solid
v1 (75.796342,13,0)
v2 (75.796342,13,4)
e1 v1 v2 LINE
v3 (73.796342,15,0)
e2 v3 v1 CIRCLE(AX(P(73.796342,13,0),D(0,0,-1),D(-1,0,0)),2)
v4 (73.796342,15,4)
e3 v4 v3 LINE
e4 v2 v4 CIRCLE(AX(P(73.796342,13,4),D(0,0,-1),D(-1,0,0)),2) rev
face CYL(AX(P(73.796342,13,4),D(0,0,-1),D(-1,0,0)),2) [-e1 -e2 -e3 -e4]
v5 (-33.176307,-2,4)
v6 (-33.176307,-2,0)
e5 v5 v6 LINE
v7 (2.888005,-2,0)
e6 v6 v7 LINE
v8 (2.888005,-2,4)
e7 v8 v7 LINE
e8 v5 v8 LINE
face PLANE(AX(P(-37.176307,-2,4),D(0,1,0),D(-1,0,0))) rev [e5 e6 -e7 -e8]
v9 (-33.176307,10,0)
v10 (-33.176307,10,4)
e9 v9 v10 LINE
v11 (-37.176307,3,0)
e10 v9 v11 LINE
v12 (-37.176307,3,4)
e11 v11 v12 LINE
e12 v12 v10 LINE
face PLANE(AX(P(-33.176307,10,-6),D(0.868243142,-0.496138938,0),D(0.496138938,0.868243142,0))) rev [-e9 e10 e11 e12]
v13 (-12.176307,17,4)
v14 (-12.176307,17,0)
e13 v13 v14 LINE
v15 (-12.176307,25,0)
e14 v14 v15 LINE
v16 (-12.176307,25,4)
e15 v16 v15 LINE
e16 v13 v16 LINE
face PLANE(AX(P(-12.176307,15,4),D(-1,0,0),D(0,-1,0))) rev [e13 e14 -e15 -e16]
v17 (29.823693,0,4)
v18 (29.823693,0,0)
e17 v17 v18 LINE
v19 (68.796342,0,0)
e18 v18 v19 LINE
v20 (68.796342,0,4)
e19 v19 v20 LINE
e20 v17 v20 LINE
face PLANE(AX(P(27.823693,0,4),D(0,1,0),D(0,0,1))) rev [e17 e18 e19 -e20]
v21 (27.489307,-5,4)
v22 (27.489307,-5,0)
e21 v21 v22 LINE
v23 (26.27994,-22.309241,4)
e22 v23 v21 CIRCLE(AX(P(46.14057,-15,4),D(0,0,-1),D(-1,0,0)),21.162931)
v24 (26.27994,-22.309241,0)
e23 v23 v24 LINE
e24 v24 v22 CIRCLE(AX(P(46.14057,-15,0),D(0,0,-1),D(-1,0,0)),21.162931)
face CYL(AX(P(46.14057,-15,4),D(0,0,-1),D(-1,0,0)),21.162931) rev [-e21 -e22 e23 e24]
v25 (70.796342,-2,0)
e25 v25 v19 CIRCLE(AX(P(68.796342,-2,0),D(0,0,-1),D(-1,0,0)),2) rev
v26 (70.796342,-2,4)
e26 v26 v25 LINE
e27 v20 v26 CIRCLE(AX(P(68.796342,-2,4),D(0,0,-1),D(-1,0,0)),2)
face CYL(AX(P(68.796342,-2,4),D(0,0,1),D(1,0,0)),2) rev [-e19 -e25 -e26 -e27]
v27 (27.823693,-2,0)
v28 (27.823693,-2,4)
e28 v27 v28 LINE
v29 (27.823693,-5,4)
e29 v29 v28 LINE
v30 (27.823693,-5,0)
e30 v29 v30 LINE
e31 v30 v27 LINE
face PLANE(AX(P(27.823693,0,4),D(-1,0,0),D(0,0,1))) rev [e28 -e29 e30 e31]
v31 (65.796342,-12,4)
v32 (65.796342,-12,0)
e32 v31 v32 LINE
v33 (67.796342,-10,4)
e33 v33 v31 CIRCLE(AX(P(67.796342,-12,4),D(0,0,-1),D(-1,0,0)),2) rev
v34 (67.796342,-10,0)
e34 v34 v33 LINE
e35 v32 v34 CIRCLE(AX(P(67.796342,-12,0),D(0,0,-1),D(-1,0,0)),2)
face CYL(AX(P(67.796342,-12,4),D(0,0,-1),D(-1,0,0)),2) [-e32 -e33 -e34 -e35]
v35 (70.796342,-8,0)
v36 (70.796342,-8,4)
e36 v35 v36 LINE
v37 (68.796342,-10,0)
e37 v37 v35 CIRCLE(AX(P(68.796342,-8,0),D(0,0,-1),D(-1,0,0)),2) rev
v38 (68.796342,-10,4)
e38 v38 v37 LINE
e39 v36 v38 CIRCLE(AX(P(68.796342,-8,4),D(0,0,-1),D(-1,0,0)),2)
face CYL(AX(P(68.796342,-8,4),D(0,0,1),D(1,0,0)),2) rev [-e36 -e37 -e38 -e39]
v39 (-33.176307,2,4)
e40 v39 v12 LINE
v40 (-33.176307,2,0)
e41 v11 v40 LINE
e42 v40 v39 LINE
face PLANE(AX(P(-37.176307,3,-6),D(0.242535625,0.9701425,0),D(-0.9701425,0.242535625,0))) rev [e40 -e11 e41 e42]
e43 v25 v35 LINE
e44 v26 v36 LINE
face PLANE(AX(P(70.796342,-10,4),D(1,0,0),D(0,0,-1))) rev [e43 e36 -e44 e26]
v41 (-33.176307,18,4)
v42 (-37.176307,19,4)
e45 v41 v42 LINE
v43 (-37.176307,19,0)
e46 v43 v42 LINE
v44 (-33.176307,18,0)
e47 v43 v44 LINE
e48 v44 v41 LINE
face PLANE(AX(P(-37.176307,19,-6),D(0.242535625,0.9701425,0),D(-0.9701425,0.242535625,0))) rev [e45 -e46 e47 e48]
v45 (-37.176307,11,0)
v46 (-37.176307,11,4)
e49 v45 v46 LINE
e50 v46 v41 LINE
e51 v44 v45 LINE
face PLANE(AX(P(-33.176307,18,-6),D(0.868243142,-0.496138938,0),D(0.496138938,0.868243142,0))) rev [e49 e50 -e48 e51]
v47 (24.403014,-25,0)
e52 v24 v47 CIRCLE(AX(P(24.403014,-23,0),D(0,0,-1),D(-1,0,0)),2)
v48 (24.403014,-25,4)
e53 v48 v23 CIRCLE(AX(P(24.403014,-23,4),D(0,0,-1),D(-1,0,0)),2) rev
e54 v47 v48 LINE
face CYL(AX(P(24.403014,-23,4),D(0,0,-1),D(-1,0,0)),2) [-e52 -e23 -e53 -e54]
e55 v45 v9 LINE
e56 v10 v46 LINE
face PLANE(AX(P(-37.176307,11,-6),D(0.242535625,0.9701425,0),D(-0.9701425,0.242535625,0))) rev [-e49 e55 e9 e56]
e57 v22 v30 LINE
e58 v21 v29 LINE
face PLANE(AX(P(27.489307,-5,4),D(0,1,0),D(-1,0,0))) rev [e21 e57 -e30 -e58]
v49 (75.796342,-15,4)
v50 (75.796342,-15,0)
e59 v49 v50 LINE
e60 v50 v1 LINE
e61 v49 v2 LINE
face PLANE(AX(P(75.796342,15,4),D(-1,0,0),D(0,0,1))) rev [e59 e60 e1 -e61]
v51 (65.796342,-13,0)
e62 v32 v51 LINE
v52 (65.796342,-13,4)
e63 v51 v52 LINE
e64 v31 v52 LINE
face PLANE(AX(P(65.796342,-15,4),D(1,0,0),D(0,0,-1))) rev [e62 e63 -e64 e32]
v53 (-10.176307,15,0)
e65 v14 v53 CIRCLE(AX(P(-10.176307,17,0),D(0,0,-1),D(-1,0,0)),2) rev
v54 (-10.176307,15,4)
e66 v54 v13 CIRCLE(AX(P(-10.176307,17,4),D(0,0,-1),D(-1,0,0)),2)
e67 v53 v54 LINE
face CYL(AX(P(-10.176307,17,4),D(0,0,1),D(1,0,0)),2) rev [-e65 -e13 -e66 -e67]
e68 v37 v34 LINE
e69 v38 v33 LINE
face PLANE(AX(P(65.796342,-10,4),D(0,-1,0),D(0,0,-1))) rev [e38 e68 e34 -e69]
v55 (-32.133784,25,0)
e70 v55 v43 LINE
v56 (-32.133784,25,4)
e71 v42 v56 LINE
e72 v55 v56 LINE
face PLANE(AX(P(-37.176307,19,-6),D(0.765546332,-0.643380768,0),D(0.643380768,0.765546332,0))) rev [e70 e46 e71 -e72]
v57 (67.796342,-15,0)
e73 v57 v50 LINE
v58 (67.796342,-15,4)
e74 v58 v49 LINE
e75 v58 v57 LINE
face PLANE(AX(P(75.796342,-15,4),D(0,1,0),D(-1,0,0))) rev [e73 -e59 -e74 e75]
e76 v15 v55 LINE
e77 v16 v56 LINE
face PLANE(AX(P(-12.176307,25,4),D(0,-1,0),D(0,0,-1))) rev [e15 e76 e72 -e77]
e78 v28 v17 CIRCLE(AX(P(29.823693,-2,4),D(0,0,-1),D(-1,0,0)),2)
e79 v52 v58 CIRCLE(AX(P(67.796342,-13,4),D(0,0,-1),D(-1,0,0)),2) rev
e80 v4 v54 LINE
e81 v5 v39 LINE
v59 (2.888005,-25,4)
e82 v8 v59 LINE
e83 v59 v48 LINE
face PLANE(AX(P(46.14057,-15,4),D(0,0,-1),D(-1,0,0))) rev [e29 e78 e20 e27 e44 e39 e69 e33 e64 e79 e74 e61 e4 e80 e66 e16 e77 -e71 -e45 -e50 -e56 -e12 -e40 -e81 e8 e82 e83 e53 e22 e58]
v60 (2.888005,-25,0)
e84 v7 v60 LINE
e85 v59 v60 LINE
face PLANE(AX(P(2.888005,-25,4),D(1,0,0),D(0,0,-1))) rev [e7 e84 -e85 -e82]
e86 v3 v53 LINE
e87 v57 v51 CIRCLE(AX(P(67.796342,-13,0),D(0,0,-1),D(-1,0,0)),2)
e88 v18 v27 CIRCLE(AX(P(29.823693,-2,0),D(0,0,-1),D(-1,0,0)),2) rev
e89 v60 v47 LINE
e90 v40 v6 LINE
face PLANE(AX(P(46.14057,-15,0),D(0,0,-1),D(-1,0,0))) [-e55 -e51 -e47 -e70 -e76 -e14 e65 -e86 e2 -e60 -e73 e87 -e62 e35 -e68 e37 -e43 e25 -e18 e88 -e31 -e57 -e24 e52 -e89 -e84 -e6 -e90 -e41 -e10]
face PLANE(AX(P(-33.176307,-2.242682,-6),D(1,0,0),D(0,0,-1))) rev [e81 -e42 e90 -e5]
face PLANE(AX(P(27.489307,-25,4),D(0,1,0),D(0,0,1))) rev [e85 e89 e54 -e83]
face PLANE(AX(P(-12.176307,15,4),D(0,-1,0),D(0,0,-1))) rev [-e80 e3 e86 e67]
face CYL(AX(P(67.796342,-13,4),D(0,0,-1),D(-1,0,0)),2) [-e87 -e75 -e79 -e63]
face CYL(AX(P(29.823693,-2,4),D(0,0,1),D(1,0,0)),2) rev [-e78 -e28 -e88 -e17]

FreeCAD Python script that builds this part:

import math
import FreeCAD as App
import Part
import Sketcher


def edges_at(feature, points):
    """Names of the edges that pass closest to the given points."""
    edges = feature.Shape.Edges
    near = lambda p: min(range(len(edges)), key=lambda i: edges[i].distToShape(Part.Vertex(*p))[0])
    return sorted({f"Edge{near(p) + 1}" for p in points})


def add_polygon(sketch, points):
    """Adds a closed chain of lines whose ends are joined by coincident constraints."""
    first, n = sketch.GeometryCount, len(points)
    for a, b in zip(points, points[1:] + points[:1]):
        sketch.addGeometry(Part.LineSegment(App.Vector(*a, 0), App.Vector(*b, 0)), False)
    for i in range(n):
        sketch.addConstraint(Sketcher.Constraint("Coincident", first + i, 2, first + (i + 1) % n, 1))

doc = App.newDocument("Part")
body = doc.addObject("PartDesign::Body", "Body")

sketch1 = body.newObject("Sketcher::SketchObject", "Sketch")
sketch1.AttachmentSupport = (doc.getObject("XY_Plane"), [""])
sketch1.MapMode = "FlatFace"
sketch1.addGeometry([
    Part.LineSegment(App.Vector(75.796342, -15, 0), App.Vector(75.796342, 15, 0)),
    Part.LineSegment(App.Vector(75.796342, 15, 0), App.Vector(-12.176307, 15, 0)),
    Part.LineSegment(App.Vector(-12.176307, 15, 0), App.Vector(-12.176307, 25, 0)),
    Part.LineSegment(App.Vector(-12.176307, 25, 0), App.Vector(-37.176307, 25, 0)),
    Part.LineSegment(App.Vector(-37.176307, 25, 0), App.Vector(-37.176307, -2, 0)),
    Part.LineSegment(App.Vector(-37.176307, -2, 0), App.Vector(2.888005, -2, 0)),
    Part.LineSegment(App.Vector(2.888005, -2, 0), App.Vector(2.888005, -25, 0)),
    Part.LineSegment(App.Vector(2.888005, -25, 0), App.Vector(27.489307, -25, 0)),
    Part.ArcOfCircle(Part.Circle(App.Vector(46.14057, -15, 0), App.Vector(0, 0, 1), 21.162931), math.radians(151.801717), math.radians(208.198283)),
    Part.LineSegment(App.Vector(27.489307, -5, 0), App.Vector(27.823693, -5, 0)),
    Part.LineSegment(App.Vector(27.823693, -5, 0), App.Vector(27.823693, 0, 0)),
    Part.LineSegment(App.Vector(27.823693, 0, 0), App.Vector(70.796342, 0, 0)),
    Part.LineSegment(App.Vector(70.796342, 0, 0), App.Vector(70.796342, -10, 0)),
    Part.LineSegment(App.Vector(70.796342, -10, 0), App.Vector(65.796342, -10, 0)),
    Part.LineSegment(App.Vector(65.796342, -10, 0), App.Vector(65.796342, -15, 0)),
    Part.LineSegment(App.Vector(65.796342, -15, 0), App.Vector(75.796342, -15, 0)),
], False)
sketch1.addConstraint([
    Sketcher.Constraint("Coincident", 0, 2, 1, 1),
    Sketcher.Constraint("Coincident", 1, 2, 2, 1),
    Sketcher.Constraint("Coincident", 2, 2, 3, 1),
    Sketcher.Constraint("Coincident", 3, 2, 4, 1),
    Sketcher.Constraint("Coincident", 4, 2, 5, 1),
    Sketcher.Constraint("Coincident", 5, 2, 6, 1),
    Sketcher.Constraint("Coincident", 6, 2, 7, 1),
    Sketcher.Constraint("Coincident", 7, 2, 8, 2),
    Sketcher.Constraint("Coincident", 8, 1, 9, 1),
    Sketcher.Constraint("Coincident", 9, 2, 10, 1),
    Sketcher.Constraint("Coincident", 10, 2, 11, 1),
    Sketcher.Constraint("Coincident", 11, 2, 12, 1),
    Sketcher.Constraint("Coincident", 12, 2, 13, 1),
    Sketcher.Constraint("Coincident", 13, 2, 14, 1),
    Sketcher.Constraint("Coincident", 14, 2, 15, 1),
    Sketcher.Constraint("Coincident", 15, 2, 0, 1),
    Sketcher.Constraint("Vertical", 0),
    Sketcher.Constraint("Horizontal", 1),
    Sketcher.Constraint("Vertical", 2),
    Sketcher.Constraint("Horizontal", 3),
    Sketcher.Constraint("Vertical", 4),
    Sketcher.Constraint("Horizontal", 5),
    Sketcher.Constraint("Vertical", 6),
    Sketcher.Constraint("Horizontal", 7),
    Sketcher.Constraint("Horizontal", 9),
    Sketcher.Constraint("Vertical", 10),
    Sketcher.Constraint("Horizontal", 11),
    Sketcher.Constraint("Vertical", 12),
    Sketcher.Constraint("Horizontal", 13),
    Sketcher.Constraint("Vertical", 14),
    Sketcher.Constraint("Horizontal", 15),
    Sketcher.Constraint("PointOnObject", 10, 2, -1),
    Sketcher.Constraint("Horizontal", 8, 3, 14, 2),
    Sketcher.Constraint("Vertical", 7, 2, 8, 1),
    Sketcher.Constraint("Equal", 15, 2),
    Sketcher.Constraint("Equal", 13, 10),
    Sketcher.Constraint("Equal", 2, 12),
    Sketcher.Constraint("Equal", 10, 14),
    Sketcher.Constraint("DistanceX", 3, 2, 3, 1, 25.0),
    Sketcher.Constraint("DistanceX", 13, 2, 13, 1, 5.0),
    Sketcher.Constraint("DistanceX", 15, 1, 15, 2, 10.0),
    Sketcher.Constraint("DistanceY", 0, 1, 0, 2, 30.0),
    Sketcher.Constraint("DistanceY", 4, 2, 4, 1, 27.0),
    Sketcher.Constraint("Radius", 8, 21.162931),
    Sketcher.Constraint("DistanceX", 7, 1, 7, 2, 24.601302),
    Sketcher.Constraint("DistanceX", 1, 2, 1, 1, 87.972649),
    Sketcher.Constraint("DistanceX", 5, 1, 5, 2, 40.064312),
    Sketcher.Constraint("DistanceX", 11, 1, 11, 2, 42.972649),
    Sketcher.Constraint("DistanceX", -1, 1, 8, 3, 46.14057),
])
pad1 = body.newObject("PartDesign::Pad", "Pad")
pad1.Profile = sketch1
pad1.Length = 4

sketch2 = body.newObject("Sketcher::SketchObject", "Sketch001")
sketch2.AttachmentSupport = (doc.getObject("XY_Plane"), [""])
sketch2.MapMode = "FlatFace"
sketch2.AttachmentOffset = App.Placement(App.Vector(0, 0, 4), App.Rotation())
add_polygon(sketch2, [(-37.176307, 19), (-32.133784, 25), (-32.133784, 30.908725), (-39.468084, 30.908725), (-39.468084, -2.242682), (-33.176307, -2.242682), (-33.176307, 2), (-37.176307, 3), (-33.176307, 10), (-37.176307, 11), (-33.176307, 18)])
sketch2.addConstraint([
    Sketcher.Constraint("Vertical", 1),
    Sketcher.Constraint("Horizontal", 2),
    Sketcher.Constraint("Vertical", 3),
    Sketcher.Constraint("Horizontal", 4),
    Sketcher.Constraint("Vertical", 5),
    Sketcher.Constraint("Parallel", 6, 8),
    Sketcher.Constraint("Parallel", 7, 9),
    Sketcher.Constraint("Parallel", 8, 10),
    Sketcher.Constraint("Vertical", 5, 2, 7, 2),
    Sketcher.Constraint("Vertical", 6, 2, 8, 2),
    Sketcher.Constraint("Vertical", 7, 2, 9, 2),
    Sketcher.Constraint("Vertical", 8, 2, 10, 2),
    Sketcher.Constraint("DistanceY", -1, 1, 0, 2, 25.0),
    Sketcher.Constraint("DistanceY", -1, 1, 5, 2, 2.0),
    Sketcher.Constraint("DistanceY", -1, 1, 6, 2, 3.0),
    Sketcher.Constraint("DistanceY", -1, 1, 7, 2, 10.0),
    Sketcher.Constraint("DistanceX", 6, 2, 5, 2, 4.0),
    Sketcher.Constraint("DistanceX", 2, 2, 2, 1, 7.3343),
    Sketcher.Constraint("Distance", 0, 7.83754),
    Sketcher.Constraint("DistanceY", 1, 1, 1, 2, 5.908725),
    Sketcher.Constraint("DistanceY", 3, 2, 3, 1, 33.151407),
    Sketcher.Constraint("DistanceX", 0, 2, -1, 1, 32.133784),
])
pocket1 = body.newObject("PartDesign::Pocket", "Pocket")
pocket1.Profile = sketch2
pocket1.Length = 10
doc.recompute()

fillet = body.newObject("PartDesign::Fillet", "Fillet")
fillet.Base = (pocket1, edges_at(pocket1, [
    (65.796, -15, 2),
    (65.796, -10, 2),
    (70.796, -10, 2),
    (27.489, -25, 2),
]))
fillet.Radius = 2
doc.recompute()

fillet2 = body.newObject("PartDesign::Fillet", "Fillet001")
fillet2.Base = (fillet, edges_at(fillet, [
    (75.796, 15, 2),
    (70.796, 0, 2),
    (27.824, 0, 2),
    (-12.176, 15, 2),
]))
fillet2.Radius = 2

doc.recompute()
